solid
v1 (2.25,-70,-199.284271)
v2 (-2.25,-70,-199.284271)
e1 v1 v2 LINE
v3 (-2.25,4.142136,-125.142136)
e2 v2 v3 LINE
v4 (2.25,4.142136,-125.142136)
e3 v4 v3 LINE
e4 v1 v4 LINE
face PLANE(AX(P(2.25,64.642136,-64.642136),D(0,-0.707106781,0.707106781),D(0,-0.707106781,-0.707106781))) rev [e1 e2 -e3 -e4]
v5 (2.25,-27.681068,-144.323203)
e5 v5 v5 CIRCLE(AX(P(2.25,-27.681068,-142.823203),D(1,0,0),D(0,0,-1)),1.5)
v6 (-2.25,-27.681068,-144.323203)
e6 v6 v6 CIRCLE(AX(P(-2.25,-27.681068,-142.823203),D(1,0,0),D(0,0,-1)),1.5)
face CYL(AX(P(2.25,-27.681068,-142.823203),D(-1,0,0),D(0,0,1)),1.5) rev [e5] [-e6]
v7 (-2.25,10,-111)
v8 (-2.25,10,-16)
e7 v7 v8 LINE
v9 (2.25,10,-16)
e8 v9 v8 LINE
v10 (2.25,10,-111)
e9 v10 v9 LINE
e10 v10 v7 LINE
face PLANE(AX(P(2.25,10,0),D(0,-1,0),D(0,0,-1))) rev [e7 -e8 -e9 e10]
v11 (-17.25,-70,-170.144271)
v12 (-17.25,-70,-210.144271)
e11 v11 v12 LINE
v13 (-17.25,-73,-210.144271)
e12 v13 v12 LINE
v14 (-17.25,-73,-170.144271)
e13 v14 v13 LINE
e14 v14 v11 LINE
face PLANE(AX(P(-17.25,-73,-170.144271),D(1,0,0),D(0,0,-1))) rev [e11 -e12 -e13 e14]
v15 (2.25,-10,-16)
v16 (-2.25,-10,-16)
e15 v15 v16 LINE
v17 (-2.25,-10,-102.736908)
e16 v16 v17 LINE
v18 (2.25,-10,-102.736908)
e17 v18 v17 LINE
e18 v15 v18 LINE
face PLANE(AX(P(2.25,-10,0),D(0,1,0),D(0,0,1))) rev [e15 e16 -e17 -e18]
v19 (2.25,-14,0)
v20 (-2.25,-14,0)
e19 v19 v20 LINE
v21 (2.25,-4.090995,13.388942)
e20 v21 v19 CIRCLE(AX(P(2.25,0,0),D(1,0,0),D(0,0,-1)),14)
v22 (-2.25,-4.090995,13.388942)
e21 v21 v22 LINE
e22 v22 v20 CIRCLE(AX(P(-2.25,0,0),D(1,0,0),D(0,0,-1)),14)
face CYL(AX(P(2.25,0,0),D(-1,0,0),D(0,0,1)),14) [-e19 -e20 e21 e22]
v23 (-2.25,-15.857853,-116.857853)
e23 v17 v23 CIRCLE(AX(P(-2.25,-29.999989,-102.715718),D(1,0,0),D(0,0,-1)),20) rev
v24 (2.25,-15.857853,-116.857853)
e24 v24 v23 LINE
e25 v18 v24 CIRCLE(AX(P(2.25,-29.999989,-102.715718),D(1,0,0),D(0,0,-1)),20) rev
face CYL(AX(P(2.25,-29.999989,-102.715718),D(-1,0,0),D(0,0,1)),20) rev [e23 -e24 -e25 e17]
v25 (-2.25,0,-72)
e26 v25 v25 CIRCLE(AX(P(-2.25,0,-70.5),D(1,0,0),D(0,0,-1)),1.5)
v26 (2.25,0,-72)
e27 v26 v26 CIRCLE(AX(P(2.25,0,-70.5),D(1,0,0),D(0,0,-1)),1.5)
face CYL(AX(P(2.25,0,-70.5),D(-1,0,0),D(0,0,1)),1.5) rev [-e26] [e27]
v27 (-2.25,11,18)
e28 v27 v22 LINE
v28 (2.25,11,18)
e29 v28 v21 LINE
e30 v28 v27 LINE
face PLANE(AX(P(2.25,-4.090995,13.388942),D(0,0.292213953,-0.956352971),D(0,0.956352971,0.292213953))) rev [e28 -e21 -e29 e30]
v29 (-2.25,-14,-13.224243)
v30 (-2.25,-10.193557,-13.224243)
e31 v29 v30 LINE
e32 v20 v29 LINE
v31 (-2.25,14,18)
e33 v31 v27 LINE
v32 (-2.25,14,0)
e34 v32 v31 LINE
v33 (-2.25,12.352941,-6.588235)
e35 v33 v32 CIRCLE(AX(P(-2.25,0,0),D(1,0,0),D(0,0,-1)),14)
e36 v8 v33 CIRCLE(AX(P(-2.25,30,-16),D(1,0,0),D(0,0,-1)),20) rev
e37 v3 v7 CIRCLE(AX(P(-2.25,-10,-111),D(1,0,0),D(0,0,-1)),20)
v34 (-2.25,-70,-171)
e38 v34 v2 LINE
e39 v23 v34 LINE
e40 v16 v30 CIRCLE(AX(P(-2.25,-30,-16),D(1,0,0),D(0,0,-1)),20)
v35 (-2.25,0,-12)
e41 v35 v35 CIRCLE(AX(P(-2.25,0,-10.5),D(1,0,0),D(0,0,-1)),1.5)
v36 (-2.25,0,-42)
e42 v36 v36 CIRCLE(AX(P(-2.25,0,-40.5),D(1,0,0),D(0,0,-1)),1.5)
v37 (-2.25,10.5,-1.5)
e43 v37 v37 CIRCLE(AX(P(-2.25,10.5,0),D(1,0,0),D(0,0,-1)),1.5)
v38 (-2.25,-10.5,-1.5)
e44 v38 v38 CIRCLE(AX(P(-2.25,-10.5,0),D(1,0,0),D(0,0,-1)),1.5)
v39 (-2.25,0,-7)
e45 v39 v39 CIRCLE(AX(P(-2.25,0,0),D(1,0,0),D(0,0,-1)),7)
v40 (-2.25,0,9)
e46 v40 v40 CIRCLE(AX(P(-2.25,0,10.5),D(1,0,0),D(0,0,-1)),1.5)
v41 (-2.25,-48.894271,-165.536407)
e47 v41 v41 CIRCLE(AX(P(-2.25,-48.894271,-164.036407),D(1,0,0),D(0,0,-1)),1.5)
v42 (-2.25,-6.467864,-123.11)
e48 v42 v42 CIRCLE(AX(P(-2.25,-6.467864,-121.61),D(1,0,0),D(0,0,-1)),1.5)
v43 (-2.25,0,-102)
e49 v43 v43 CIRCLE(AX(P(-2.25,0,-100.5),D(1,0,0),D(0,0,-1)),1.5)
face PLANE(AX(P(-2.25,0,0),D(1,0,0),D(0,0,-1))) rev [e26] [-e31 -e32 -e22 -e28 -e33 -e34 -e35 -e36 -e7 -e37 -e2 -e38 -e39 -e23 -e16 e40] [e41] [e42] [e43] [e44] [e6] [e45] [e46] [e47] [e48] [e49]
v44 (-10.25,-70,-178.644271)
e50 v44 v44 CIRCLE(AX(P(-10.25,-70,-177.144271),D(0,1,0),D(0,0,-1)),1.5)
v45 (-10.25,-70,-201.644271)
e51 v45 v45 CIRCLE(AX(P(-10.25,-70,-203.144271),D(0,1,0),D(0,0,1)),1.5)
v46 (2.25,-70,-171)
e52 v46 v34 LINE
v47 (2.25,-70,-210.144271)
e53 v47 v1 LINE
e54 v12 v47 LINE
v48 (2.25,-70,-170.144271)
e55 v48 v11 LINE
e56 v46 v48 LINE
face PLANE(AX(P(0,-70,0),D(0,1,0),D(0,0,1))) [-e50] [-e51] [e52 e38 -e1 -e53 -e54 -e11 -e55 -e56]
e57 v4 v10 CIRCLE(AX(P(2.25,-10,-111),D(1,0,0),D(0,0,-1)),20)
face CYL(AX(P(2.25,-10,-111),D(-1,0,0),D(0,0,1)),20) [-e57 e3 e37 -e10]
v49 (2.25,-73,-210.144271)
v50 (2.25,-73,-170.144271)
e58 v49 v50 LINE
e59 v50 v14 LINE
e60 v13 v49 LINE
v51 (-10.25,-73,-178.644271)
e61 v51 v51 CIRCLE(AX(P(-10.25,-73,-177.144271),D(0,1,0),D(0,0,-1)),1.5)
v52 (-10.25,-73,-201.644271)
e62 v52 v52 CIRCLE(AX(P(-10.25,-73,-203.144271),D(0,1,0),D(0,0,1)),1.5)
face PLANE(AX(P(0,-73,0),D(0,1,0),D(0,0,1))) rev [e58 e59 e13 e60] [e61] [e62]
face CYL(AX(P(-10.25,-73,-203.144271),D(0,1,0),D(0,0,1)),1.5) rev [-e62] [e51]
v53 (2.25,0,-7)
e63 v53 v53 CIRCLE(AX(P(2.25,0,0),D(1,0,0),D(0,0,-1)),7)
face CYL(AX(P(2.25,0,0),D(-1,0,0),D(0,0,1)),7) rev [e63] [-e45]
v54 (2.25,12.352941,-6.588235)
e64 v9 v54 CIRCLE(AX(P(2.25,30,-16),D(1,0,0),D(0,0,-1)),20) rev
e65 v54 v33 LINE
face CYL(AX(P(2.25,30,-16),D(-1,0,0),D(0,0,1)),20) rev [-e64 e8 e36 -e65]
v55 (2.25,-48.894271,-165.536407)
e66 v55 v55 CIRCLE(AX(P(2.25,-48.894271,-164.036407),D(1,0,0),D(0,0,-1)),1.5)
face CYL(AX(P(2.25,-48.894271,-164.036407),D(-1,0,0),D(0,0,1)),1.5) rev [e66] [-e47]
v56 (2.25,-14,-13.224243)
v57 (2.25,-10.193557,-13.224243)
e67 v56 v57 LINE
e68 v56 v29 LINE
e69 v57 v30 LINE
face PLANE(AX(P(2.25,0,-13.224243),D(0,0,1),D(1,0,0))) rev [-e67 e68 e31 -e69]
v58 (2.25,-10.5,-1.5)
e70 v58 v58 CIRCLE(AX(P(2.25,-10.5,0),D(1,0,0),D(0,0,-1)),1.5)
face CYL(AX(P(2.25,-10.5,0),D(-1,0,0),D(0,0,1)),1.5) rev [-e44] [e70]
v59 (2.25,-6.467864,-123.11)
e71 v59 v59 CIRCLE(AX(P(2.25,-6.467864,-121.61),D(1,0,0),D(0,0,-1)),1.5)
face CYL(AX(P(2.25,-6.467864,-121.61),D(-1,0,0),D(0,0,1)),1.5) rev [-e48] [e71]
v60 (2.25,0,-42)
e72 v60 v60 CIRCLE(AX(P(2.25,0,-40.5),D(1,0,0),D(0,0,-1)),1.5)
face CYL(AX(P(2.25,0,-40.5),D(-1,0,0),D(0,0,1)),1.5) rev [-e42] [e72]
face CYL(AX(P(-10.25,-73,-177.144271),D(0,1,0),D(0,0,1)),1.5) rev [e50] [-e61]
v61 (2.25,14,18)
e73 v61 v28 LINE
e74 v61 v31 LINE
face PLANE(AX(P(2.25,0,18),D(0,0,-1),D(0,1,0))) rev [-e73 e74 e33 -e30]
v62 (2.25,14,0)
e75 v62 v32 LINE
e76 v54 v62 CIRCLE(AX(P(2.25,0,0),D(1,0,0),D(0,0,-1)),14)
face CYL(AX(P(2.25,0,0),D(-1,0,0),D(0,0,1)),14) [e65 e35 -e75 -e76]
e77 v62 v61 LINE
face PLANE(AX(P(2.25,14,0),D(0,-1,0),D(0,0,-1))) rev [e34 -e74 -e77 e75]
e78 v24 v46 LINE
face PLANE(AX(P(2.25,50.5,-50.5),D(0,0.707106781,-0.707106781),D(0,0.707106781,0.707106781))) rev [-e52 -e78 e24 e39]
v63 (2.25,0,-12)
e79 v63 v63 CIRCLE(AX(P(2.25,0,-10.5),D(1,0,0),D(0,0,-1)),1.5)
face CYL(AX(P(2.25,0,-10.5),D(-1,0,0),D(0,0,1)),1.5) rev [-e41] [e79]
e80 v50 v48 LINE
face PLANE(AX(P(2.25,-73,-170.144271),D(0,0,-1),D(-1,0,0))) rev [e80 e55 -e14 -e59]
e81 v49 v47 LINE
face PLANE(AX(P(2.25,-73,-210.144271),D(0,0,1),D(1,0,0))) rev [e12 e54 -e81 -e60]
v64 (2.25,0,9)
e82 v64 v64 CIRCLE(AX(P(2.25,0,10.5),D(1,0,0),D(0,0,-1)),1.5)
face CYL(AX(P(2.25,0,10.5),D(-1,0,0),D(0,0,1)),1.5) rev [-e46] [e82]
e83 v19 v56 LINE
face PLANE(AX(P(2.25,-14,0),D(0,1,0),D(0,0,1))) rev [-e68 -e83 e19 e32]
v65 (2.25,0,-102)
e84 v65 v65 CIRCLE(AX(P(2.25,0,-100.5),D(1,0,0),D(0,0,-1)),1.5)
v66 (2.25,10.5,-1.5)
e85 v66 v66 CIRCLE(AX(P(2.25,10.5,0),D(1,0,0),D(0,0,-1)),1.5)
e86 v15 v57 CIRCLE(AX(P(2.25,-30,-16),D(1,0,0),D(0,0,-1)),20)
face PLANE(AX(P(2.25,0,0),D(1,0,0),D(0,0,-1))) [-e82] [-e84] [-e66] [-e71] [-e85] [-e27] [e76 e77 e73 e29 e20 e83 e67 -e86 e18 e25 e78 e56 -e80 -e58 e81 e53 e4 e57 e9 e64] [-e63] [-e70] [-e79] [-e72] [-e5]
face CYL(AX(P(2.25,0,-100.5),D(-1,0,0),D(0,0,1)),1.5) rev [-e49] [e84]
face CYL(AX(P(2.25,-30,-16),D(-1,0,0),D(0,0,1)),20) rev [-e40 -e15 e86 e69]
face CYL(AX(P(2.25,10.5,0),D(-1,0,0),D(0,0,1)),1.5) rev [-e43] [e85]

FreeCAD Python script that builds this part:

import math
import FreeCAD as App
import Part
import Sketcher
Q = App.Units.Quantity

doc = App.newDocument("Part")
body = doc.addObject("PartDesign::Body", "Body")

# Sketch on YZ plane
sketch1 = body.newObject("Sketcher::SketchObject", "Sketch")
sketch1.AttachmentSupport = (doc.getObject("YZ_Plane"), [""])
sketch1.MapMode = "FlatFace"
sketch1.addGeometry([
    Part.ArcOfCircle(Part.Circle(App.Vector(-29.999989, -102.715718, 0), App.Vector(0, 0, 1), 20), math.radians(-45), math.radians(-0.060706)),  # 0
    Part.LineSegment(App.Vector(-15.857853, -116.857853, 0), App.Vector(-70, -171, 0)),  # 1
    Part.LineSegment(App.Vector(-70, -171, 0), App.Vector(-70, -199.284271, 0)),  # 2
    Part.LineSegment(App.Vector(-70, -199.284271, 0), App.Vector(4.142136, -125.142136, 0)),  # 3
    Part.ArcOfCircle(Part.Circle(App.Vector(-10, -111, 0), App.Vector(0, 0, 1), 20), math.radians(-45), math.radians(0)),  # 4
    Part.LineSegment(App.Vector(10, -111, 0), App.Vector(10, -16, 0)),  # 5
    Part.ArcOfCircle(Part.Circle(App.Vector(30, -16, 0), App.Vector(0, 0, 1), 20), math.radians(151.927513), math.radians(180)),  # 6
    Part.ArcOfCircle(Part.Circle(App.Vector(0, 0, 0), App.Vector(0, 0, 1), 14), math.radians(-28.072487), math.radians(0)),  # 7
    Part.LineSegment(App.Vector(14, 0, 0), App.Vector(14, 18, 0)),  # 8
    Part.LineSegment(App.Vector(14, 18, 0), App.Vector(11, 18, 0)),  # 9
    Part.LineSegment(App.Vector(11, 18, 0), App.Vector(-4.090995, 13.388942, 0)),  # 10
    Part.ArcOfCircle(Part.Circle(App.Vector(0, 0, 0), App.Vector(0, 0, 1), 14), math.radians(106.990549), math.radians(180)),  # 11
    Part.LineSegment(App.Vector(-14, 0, 0), App.Vector(-14, -13.224243, 0)),  # 12
    Part.LineSegment(App.Vector(-14, -13.224243, 0), App.Vector(-10.193557, -13.224243, 0)),  # 13
    Part.ArcOfCircle(Part.Circle(App.Vector(-30, -16, 0), App.Vector(0, 0, 1), 20), math.radians(0), math.radians(7.977709)),  # 14
    Part.LineSegment(App.Vector(-10, -16, 0), App.Vector(-10, -102.736908, 0)),  # 15
    Part.Circle(App.Vector(-48.894271, -164.036407, 0), App.Vector(0, 0, 1), 1.5),  # 16
    Part.Circle(App.Vector(-27.681068, -142.823203, 0), App.Vector(0, 0, 1), 1.5),  # 17
    Part.Circle(App.Vector(-10.5, 0, 0), App.Vector(0, 0, 1), 1.5),  # 18
    Part.Circle(App.Vector(0, 10.5, 0), App.Vector(0, 0, 1), 1.5),  # 19
    Part.Circle(App.Vector(0, 0, 0), App.Vector(0, 0, 1), 7),  # 20
    Part.Circle(App.Vector(0, -10.5, 0), App.Vector(0, 0, 1), 1.5),  # 21
    Part.Circle(App.Vector(10.5, 0, 0), App.Vector(0, 0, 1), 1.5),  # 22
    Part.Circle(App.Vector(0, -40.5, 0), App.Vector(0, 0, 1), 1.5),  # 23
    Part.Circle(App.Vector(0, -70.5, 0), App.Vector(0, 0, 1), 1.5),  # 24
    Part.Circle(App.Vector(-6.467864, -121.61, 0), App.Vector(0, 0, 1), 1.5),  # 25
    Part.Circle(App.Vector(0, -100.5, 0), App.Vector(0, 0, 1), 1.5),  # 26
], False)
sketch1.addConstraint([
    Sketcher.Constraint("Tangent", 0, 1, 1, 1),
    Sketcher.Constraint("Coincident", 1, 2, 2, 1),
    Sketcher.Constraint("Coincident", 2, 2, 3, 1),
    Sketcher.Constraint("Tangent", 3, 2, 4, 1),
    Sketcher.Constraint("Tangent", 4, 2, 5, 1),
    Sketcher.Constraint("Tangent", 5, 2, 6, 2),
    Sketcher.Constraint("Tangent", 6, 1, 7, 1),
    Sketcher.Constraint("Tangent", 7, 2, 8, 1),
    Sketcher.Constraint("Coincident", 8, 2, 9, 1),
    Sketcher.Constraint("Coincident", 9, 2, 10, 1),
    Sketcher.Constraint("Tangent", 10, 2, 11, 1),
    Sketcher.Constraint("Tangent", 11, 2, 12, 1),
    Sketcher.Constraint("Coincident", 12, 2, 13, 1),
    Sketcher.Constraint("Coincident", 13, 2, 14, 2),
    Sketcher.Constraint("Tangent", 14, 1, 15, 1),
    Sketcher.Constraint("Coincident", 15, 2, 0, 2),
    Sketcher.Constraint("Vertical", 2),
    Sketcher.Constraint("Vertical", 5),
    Sketcher.Constraint("Vertical", 8),
    Sketcher.Constraint("Horizontal", 9),
    Sketcher.Constraint("Vertical", 12),
    Sketcher.Constraint("Horizontal", 13),
    Sketcher.Constraint("Vertical", 15),
    Sketcher.Constraint("Coincident", 7, 3, -1, 1),
    Sketcher.Constraint("Coincident", 11, 3, -1, 1),
    Sketcher.Constraint("Coincident", 20, 3, -1, 1),
    Sketcher.Constraint("Equal", 0, 4),
    Sketcher.Constraint("Equal", 4, 6),
    Sketcher.Constraint("Equal", 7, 11),
    Sketcher.Constraint("Equal", 6, 14),
    Sketcher.Constraint("Equal", 16, 17),
    Sketcher.Constraint("Equal", 17, 18),
    Sketcher.Constraint("Equal", 18, 19),
    Sketcher.Constraint("Equal", 19, 21),
    Sketcher.Constraint("Equal", 21, 22),
    Sketcher.Constraint("Equal", 22, 23),
    Sketcher.Constraint("Equal", 23, 24),
    Sketcher.Constraint("Equal", 24, 25),
    Sketcher.Constraint("Equal", 25, 26),
    Sketcher.Constraint("Symmetric", 19, 3, 21, 3, -1, 1),
    Sketcher.Constraint("Symmetric", 18, 3, 22, 3, -1, 1),
    Sketcher.Constraint("Symmetric", 6, 3, 14, 3, -2),
    Sketcher.Constraint("PointOnObject", 18, 3, -1),
    Sketcher.Constraint("PointOnObject", 19, 3, -2),
    Sketcher.Constraint("PointOnObject", 23, 3, -2),
    Sketcher.Constraint("PointOnObject", 24, 3, -2),
    Sketcher.Constraint("PointOnObject", 26, 3, -2),
    Sketcher.Constraint("Parallel", 1, 3),
    Sketcher.Constraint("Vertical", 4, 3, 14, 1),
    Sketcher.Constraint("Diameter", 16, Q("3 mm")),
    Sketcher.Constraint("Diameter", 20, Q("14 mm")),
    Sketcher.Constraint("Radius", 0, Q("20 mm")),
    Sketcher.Constraint("Radius", 7, Q("14 mm")),
    Sketcher.Constraint("DistanceX", 9, 2, 9, 1, Q("3 mm")),
    Sketcher.Constraint("DistanceY", 5, 1, 5, 2, Q("95 mm")),
    Sketcher.Constraint("DistanceY", 8, 1, 8, 2, Q("18 mm")),
    Sketcher.Constraint("Angle", 1, Q("-135 deg")),
    Sketcher.Constraint("DistanceX", 1, 2, -1, 1, Q("70 mm")),
    Sketcher.Constraint("DistanceY", 1, 2, -1, 1, Q("171 mm")),
    Sketcher.Constraint("DistanceY", 21, 3, 19, 3, Q("21 mm")),
    Sketcher.Constraint("DistanceY", 23, 3, 21, 3, Q("30 mm")),
    Sketcher.Constraint("DistanceY", 24, 3, 23, 3, Q("30 mm")),
    Sketcher.Constraint("DistanceY", 26, 3, 24, 3, Q("30 mm")),
    Sketcher.Constraint("DistanceX", 18, 3, -1, 1, Q("10.5 mm")),
    Sketcher.Constraint("DistanceY", 25, 3, -1, 1, Q("121.61 mm")),
    Sketcher.Constraint("DistanceX", 25, 3, 3, 2, Q("10.61 mm")),
    Sketcher.Constraint("DistanceX", 13, 1, 13, 2, Q("3.806443 mm")),
    Sketcher.Constraint("DistanceY", 15, 2, 15, 1, Q("86.736908 mm")),
    Sketcher.Constraint("DistanceX", 16, 3, -1, 1, Q("48.894271 mm")),
    Sketcher.Constraint("DistanceY", 16, 3, 0, 3, Q("61.320689 mm")),
    Sketcher.Constraint("DistanceX", 0, 3, 17, 3, Q("2.318921 mm")),
    Sketcher.Constraint("DistanceY", 17, 3, 0, 1, Q("25.96535 mm")),
])
pad1 = body.newObject("PartDesign::Pad", "Pad")
pad1.Profile = sketch1
pad1.Length = 4.5
pad1.Midplane = True

# Sketch on XZ plane
sketch2 = body.newObject("Sketcher::SketchObject", "Sketch001")
sketch2.AttachmentSupport = (doc.getObject("XZ_Plane"), [""])
sketch2.MapMode = "FlatFace"
sketch2.AttachmentOffset = App.Placement(App.Vector(0, 0, 70), App.Rotation())
sketch2.addGeometry([
    Part.LineSegment(App.Vector(-17.25, -170.144271, 0), App.Vector(-17.25, -210.144271, 0)),
    Part.LineSegment(App.Vector(-17.25, -210.144271, 0), App.Vector(2.25, -210.144271, 0)),
    Part.LineSegment(App.Vector(2.25, -210.144271, 0), App.Vector(2.25, -170.144271, 0)),
    Part.LineSegment(App.Vector(2.25, -170.144271, 0), App.Vector(-17.25, -170.144271, 0)),
], False)
sketch2.addConstraint([
    Sketcher.Constraint("Coincident", 0, 2, 1, 1),
    Sketcher.Constraint("Coincident", 1, 2, 2, 1),
    Sketcher.Constraint("Coincident", 2, 2, 3, 1),
    Sketcher.Constraint("Coincident", 3, 2, 0, 1),
    Sketcher.Constraint("Vertical", 0),
    Sketcher.Constraint("Horizontal", 1),
    Sketcher.Constraint("Vertical", 2),
    Sketcher.Constraint("Horizontal", 3),
    Sketcher.Constraint("DistanceY", 0, 2, 0, 1, Q("40 mm")),
    Sketcher.Constraint("DistanceX", 1, 1, 1, 2, Q("19.5 mm")),
    Sketcher.Constraint("DistanceX", 0, 2, -1, 1, Q("17.25 mm")),
    Sketcher.Constraint("DistanceY", 0, 2, -1, 1, Q("210.144271 mm")),
])
pad2 = body.newObject("PartDesign::Pad", "Pad001")
pad2.Profile = sketch2
pad2.Length = 3

# Sketch on XZ plane
sketch3 = body.newObject("Sketcher::SketchObject", "Sketch002")
sketch3.AttachmentSupport = (doc.getObject("XZ_Plane"), [""])
sketch3.MapMode = "FlatFace"
sketch3.AttachmentOffset = App.Placement(App.Vector(0, 0, 70), App.Rotation())
sketch3.addGeometry([
    Part.Circle(App.Vector(-10.25, -203.144271, 0), App.Vector(0, 0, 1), 1.5),
    Part.Circle(App.Vector(-10.25, -177.144271, 0), App.Vector(0, 0, 1), 1.5),
], False)
sketch3.addConstraint([
    Sketcher.Constraint("Equal", 0, 1),
    Sketcher.Constraint("Vertical", 0, 3, 1, 3),
    Sketcher.Constraint("Diameter", 0, Q("3 mm")),
    Sketcher.Constraint("DistanceY", 0, 3, 1, 3, Q("26 mm")),
    Sketcher.Constraint("DistanceX", 0, 3, -1, 1, Q("10.25 mm")),
    Sketcher.Constraint("DistanceY", 0, 3, -1, 1, Q("203.144271 mm")),
])
pocket1 = body.newObject("PartDesign::Pocket", "Pocket")
pocket1.Profile = sketch3
pocket1.Type = "ThroughAll"
pocket1.Reversed = True

doc.recompute()
